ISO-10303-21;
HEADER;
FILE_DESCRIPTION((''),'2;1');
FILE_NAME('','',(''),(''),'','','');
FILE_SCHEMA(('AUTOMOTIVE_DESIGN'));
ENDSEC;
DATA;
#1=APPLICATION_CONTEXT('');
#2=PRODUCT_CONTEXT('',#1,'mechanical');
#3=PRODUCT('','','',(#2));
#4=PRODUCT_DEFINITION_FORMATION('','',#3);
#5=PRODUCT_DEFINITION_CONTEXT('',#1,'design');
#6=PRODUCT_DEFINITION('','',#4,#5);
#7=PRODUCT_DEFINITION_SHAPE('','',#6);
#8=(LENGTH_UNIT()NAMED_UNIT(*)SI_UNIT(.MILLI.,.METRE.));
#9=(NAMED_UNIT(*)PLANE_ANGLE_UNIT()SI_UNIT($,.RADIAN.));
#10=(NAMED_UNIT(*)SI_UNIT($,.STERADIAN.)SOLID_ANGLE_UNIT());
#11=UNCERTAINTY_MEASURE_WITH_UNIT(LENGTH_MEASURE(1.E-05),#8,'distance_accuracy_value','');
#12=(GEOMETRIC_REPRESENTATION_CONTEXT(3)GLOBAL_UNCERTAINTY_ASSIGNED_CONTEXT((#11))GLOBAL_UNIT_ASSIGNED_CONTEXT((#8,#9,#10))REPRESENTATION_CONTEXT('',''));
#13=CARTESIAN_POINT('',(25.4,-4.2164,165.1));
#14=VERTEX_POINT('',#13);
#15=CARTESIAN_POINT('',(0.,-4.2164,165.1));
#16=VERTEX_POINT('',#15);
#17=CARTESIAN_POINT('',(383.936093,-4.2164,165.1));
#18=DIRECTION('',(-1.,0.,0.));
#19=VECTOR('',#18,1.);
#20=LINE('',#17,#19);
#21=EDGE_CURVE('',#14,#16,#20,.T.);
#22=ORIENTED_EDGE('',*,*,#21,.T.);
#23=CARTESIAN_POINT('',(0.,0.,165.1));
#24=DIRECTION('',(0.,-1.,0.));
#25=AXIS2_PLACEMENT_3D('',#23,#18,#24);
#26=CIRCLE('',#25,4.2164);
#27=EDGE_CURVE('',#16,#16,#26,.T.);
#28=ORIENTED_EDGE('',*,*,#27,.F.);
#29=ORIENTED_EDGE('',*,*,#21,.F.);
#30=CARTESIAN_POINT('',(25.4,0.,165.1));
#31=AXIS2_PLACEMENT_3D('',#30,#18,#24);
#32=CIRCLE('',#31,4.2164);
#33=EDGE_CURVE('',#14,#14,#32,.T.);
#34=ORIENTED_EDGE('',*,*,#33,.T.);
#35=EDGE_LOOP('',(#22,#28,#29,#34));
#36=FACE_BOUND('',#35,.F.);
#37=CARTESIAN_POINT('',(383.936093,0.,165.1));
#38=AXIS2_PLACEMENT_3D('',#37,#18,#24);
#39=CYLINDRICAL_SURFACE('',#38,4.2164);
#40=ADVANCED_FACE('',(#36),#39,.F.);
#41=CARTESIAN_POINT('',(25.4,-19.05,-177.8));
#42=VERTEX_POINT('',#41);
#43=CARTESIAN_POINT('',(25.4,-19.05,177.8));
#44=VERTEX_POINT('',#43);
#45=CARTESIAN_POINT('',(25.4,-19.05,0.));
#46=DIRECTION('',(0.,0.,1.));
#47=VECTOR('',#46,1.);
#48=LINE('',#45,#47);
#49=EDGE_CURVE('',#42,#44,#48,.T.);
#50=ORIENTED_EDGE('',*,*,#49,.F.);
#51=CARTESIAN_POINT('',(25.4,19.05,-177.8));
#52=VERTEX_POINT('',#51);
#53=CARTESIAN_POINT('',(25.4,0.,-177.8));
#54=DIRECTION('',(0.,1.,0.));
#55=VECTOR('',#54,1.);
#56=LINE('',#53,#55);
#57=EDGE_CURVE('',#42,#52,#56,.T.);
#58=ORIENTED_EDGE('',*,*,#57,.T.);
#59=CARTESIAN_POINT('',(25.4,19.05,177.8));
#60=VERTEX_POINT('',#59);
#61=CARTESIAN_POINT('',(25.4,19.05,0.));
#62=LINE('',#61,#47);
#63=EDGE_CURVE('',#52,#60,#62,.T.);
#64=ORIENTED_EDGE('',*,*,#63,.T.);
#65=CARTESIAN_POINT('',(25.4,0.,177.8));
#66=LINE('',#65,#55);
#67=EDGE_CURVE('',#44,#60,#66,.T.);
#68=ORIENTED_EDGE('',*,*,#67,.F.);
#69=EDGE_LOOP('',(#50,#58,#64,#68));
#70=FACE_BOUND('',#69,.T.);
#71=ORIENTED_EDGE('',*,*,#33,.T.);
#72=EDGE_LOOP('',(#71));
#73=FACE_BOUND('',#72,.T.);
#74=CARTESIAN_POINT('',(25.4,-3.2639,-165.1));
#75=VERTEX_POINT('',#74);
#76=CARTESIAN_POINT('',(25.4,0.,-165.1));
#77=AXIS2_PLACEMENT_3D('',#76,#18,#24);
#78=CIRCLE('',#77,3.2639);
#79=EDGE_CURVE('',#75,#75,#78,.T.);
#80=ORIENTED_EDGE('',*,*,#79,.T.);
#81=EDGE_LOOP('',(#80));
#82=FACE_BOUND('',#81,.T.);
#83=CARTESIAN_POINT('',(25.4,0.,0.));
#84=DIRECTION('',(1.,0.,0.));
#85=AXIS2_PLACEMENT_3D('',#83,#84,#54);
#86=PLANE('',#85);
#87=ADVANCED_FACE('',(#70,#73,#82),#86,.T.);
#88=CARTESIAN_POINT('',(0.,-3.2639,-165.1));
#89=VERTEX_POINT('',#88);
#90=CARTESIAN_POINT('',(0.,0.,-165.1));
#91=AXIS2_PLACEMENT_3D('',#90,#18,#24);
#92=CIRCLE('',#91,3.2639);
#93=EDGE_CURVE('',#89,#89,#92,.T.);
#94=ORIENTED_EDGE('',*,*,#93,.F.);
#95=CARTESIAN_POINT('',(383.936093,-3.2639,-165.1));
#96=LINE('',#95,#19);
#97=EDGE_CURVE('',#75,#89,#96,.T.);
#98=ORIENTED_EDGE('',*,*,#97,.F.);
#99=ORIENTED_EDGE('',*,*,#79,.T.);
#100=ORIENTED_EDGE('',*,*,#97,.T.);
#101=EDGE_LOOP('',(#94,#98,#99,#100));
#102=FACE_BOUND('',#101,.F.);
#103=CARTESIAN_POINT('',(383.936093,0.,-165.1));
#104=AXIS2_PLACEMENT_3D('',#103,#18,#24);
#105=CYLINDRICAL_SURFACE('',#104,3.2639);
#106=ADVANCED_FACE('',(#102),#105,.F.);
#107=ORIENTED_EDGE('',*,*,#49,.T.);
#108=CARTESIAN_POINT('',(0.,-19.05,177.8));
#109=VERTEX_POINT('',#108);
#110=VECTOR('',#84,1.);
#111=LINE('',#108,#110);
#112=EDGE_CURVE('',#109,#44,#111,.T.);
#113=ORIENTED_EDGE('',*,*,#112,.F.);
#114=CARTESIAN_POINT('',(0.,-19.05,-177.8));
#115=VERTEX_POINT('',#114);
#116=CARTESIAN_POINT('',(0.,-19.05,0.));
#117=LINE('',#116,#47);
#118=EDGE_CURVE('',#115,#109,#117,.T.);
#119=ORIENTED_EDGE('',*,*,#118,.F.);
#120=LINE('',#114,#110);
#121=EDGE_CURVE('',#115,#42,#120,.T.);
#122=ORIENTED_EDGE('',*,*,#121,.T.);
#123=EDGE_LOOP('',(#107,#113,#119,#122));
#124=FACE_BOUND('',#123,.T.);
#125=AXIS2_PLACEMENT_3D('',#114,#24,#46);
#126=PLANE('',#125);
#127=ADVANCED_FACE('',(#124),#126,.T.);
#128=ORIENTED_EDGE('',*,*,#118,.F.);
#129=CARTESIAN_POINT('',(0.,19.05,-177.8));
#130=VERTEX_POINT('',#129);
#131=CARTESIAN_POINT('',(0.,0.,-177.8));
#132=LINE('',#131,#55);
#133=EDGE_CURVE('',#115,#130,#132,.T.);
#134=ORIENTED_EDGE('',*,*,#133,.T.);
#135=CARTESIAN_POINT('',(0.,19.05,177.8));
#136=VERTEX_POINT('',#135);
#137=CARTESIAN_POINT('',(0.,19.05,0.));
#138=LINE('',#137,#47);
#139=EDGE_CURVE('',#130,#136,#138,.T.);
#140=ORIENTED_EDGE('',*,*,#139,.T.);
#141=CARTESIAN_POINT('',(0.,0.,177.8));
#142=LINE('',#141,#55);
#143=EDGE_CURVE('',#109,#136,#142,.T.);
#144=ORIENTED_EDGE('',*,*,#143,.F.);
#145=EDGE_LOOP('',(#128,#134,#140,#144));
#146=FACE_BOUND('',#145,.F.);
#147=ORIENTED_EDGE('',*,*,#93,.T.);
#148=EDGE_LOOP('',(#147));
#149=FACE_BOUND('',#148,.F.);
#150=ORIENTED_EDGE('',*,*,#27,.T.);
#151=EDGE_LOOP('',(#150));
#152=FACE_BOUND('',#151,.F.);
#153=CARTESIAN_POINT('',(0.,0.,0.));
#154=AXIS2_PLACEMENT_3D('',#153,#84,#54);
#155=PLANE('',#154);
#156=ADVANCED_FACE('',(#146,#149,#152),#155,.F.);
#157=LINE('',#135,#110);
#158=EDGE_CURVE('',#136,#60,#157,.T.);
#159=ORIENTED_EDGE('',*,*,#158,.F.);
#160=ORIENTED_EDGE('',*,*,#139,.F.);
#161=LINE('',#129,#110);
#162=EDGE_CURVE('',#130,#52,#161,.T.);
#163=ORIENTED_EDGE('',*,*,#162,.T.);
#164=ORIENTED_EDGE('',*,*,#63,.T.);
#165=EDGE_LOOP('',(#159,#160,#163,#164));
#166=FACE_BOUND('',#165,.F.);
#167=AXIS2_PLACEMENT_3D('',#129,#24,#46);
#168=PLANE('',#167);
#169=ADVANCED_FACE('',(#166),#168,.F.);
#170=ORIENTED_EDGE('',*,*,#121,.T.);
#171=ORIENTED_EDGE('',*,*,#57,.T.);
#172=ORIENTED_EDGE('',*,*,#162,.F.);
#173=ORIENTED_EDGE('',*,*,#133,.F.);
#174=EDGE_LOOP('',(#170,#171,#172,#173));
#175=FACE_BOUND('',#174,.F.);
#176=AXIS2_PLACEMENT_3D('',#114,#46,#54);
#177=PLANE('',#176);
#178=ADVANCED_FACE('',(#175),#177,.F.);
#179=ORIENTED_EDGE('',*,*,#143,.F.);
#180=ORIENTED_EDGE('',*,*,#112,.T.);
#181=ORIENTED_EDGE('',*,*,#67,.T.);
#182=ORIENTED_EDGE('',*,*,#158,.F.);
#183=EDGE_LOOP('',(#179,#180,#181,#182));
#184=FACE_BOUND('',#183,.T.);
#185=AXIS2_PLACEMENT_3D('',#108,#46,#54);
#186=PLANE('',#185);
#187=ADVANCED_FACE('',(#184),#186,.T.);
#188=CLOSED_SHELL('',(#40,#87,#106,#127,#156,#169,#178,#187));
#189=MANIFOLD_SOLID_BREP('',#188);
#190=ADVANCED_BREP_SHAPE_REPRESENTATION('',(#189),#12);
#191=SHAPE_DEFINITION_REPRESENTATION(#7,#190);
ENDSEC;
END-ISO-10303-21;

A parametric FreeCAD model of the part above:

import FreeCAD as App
import Part
import Sketcher
from FreeCAD import Vector
Q = App.Units.Quantity


def add_polygon(sketch, points):
    """Adds a closed chain of lines whose ends are joined by coincident constraints."""
    first, n = sketch.GeometryCount, len(points)
    for a, b in zip(points, points[1:] + points[:1]):
        sketch.addGeometry(Part.LineSegment(App.Vector(*a, 0), App.Vector(*b, 0)), False)
    for i in range(n):
        sketch.addConstraint(Sketcher.Constraint("Coincident", first + i, 2, first + (i + 1) % n, 1))

doc = App.newDocument("Part")
body = doc.addObject("PartDesign::Body", "Body")

sketch1 = body.newObject("Sketcher::SketchObject", "Sketch")
sketch1.AttachmentSupport = (doc.getObject("YZ_Plane"), [""])
sketch1.MapMode = "FlatFace"
add_polygon(sketch1, [(-19.05, 177.8), (-19.05, -177.8), (19.05, -177.8), (19.05, 177.8)])
sketch1.addConstraint(Sketcher.Constraint("Vertical", 0))
sketch1.addConstraint(Sketcher.Constraint("Horizontal", 1))
sketch1.addConstraint(Sketcher.Constraint("Vertical", 2))
sketch1.addConstraint(Sketcher.Constraint("Horizontal", 3))
sketch1.addConstraint(Sketcher.Constraint("Symmetric", 0, 2, 2, 2, -1, 1))
sketch1.addConstraint(Sketcher.Constraint("DistanceY", 0, 2, 0, 1, Q("14 in")))
sketch1.addConstraint(Sketcher.Constraint("DistanceX", 1, 1, 1, 2, Q("1.5 in")))
pad1 = body.newObject("PartDesign::Pad", "Pad")
pad1.Profile = sketch1
pad1.Length = Q("1 in")

sketch2 = body.newObject("Sketcher::SketchObject", "Sketch001")
sketch2.AttachmentSupport = (doc.getObject("YZ_Plane"), [""])
sketch2.MapMode = "FlatFace"
sketch2.AttachmentOffset = App.Placement(Vector(0, 0, 1 * 25.4), App.Rotation())
sketch2.addGeometry(Part.Circle(Vector(0, -165.1, 0), Vector(0, 0, 1), 3.2639), False)
sketch2.addConstraint(Sketcher.Constraint("PointOnObject", 0, 3, -2))
sketch2.addConstraint(Sketcher.Constraint("Diameter", 0, Q("0.257 in")))
sketch2.addConstraint(Sketcher.Constraint("DistanceY", 0, 3, -1, 1, Q("6.5 in")))
doc.recompute()
hole = body.newObject("PartDesign::Hole", "Hole")
hole.Profile = sketch2
hole.ThreadType = "None"
hole.Diameter = Q("0.257 in")
hole.DepthType = "ThroughAll"

sketch3 = body.newObject("Sketcher::SketchObject", "Sketch002")
sketch3.AttachmentSupport = (doc.getObject("YZ_Plane"), [""])
sketch3.MapMode = "FlatFace"
sketch3.AttachmentOffset = App.Placement(Vector(0, 0, 1 * 25.4), App.Rotation())
sketch3.addGeometry(Part.Circle(Vector(0, 165.1, 0), Vector(0, 0, 1), 4.2164), False)
sketch3.addConstraint(Sketcher.Constraint("PointOnObject", 0, 3, -2))
sketch3.addConstraint(Sketcher.Constraint("Diameter", 0, Q("0.332 in")))
sketch3.addConstraint(Sketcher.Constraint("DistanceY", -1, 1, 0, 3, Q("6.5 in")))
doc.recompute()
hole2 = body.newObject("PartDesign::Hole", "Hole001")
hole2.Profile = sketch3
hole2.ThreadType = "None"
hole2.Diameter = Q("0.332 in")
hole2.DepthType = "ThroughAll"

doc.recompute()
